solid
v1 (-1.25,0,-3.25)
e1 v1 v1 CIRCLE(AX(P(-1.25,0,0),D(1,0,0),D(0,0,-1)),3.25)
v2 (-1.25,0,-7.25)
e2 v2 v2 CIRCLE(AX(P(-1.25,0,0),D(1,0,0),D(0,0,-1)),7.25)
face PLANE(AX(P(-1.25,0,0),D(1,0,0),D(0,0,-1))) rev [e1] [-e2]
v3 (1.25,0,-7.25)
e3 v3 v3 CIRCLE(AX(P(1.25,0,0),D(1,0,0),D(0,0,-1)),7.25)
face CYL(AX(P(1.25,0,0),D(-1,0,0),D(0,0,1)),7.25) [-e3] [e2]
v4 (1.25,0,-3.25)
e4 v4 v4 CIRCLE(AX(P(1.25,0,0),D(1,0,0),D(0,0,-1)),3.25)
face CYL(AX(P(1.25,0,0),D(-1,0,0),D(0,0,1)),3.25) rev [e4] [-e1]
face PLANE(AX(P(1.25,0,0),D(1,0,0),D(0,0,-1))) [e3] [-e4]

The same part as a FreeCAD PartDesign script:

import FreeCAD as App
import Part
import Sketcher

doc = App.newDocument("Part")
params = doc.addObject("Spreadsheet::Sheet", "Params")
for row, (alias, value) in enumerate([
    ("sketch1_diameter", "14.5 mm"),
    ("sketch1_diameter2", "6.5 mm"),
    ("pad1_length", "2.5 mm"),
], start=1):
    params.set(f"A{row}", alias)
    params.set(f"B{row}", "=" + value)
    params.setAlias(f"B{row}", alias)

body = doc.addObject("PartDesign::Body", "Body")

# Sketch on YZ plane
sketch1 = doc.addObject("Sketcher::SketchObject", "Sketch")
body.addObject(sketch1)
sketch1.AttachmentSupport = (doc.YZ_Plane, [""])
sketch1.MapMode = "FlatFace"
sketch1.addGeometry(Part.Circle(App.Vector(0, 0, 0), App.Vector(0, 0, 1), 7.2), False)
sketch1.addGeometry(Part.Circle(App.Vector(0, 0, 0), App.Vector(0, 0, 1), 3.2), False)
sketch1.addConstraint(Sketcher.Constraint("Coincident", 0, 3, -1, 1))
sketch1.addConstraint(Sketcher.Constraint("Coincident", 1, 3, -1, 1))
sketch1.addConstraint(Sketcher.Constraint("Diameter", 0, 14.5))
sketch1.addConstraint(Sketcher.Constraint("Diameter", 1, 6.5))
sketch1.setExpression("Constraints[2]", "Params.sketch1_diameter")
sketch1.setExpression("Constraints[3]", "Params.sketch1_diameter2")
pad1 = doc.addObject("PartDesign::Pad", "Pad")
body.addObject(pad1)
pad1.Profile = sketch1
pad1.setExpression("Length", "Params.pad1_length")
pad1.Midplane = True

doc.recompute()
